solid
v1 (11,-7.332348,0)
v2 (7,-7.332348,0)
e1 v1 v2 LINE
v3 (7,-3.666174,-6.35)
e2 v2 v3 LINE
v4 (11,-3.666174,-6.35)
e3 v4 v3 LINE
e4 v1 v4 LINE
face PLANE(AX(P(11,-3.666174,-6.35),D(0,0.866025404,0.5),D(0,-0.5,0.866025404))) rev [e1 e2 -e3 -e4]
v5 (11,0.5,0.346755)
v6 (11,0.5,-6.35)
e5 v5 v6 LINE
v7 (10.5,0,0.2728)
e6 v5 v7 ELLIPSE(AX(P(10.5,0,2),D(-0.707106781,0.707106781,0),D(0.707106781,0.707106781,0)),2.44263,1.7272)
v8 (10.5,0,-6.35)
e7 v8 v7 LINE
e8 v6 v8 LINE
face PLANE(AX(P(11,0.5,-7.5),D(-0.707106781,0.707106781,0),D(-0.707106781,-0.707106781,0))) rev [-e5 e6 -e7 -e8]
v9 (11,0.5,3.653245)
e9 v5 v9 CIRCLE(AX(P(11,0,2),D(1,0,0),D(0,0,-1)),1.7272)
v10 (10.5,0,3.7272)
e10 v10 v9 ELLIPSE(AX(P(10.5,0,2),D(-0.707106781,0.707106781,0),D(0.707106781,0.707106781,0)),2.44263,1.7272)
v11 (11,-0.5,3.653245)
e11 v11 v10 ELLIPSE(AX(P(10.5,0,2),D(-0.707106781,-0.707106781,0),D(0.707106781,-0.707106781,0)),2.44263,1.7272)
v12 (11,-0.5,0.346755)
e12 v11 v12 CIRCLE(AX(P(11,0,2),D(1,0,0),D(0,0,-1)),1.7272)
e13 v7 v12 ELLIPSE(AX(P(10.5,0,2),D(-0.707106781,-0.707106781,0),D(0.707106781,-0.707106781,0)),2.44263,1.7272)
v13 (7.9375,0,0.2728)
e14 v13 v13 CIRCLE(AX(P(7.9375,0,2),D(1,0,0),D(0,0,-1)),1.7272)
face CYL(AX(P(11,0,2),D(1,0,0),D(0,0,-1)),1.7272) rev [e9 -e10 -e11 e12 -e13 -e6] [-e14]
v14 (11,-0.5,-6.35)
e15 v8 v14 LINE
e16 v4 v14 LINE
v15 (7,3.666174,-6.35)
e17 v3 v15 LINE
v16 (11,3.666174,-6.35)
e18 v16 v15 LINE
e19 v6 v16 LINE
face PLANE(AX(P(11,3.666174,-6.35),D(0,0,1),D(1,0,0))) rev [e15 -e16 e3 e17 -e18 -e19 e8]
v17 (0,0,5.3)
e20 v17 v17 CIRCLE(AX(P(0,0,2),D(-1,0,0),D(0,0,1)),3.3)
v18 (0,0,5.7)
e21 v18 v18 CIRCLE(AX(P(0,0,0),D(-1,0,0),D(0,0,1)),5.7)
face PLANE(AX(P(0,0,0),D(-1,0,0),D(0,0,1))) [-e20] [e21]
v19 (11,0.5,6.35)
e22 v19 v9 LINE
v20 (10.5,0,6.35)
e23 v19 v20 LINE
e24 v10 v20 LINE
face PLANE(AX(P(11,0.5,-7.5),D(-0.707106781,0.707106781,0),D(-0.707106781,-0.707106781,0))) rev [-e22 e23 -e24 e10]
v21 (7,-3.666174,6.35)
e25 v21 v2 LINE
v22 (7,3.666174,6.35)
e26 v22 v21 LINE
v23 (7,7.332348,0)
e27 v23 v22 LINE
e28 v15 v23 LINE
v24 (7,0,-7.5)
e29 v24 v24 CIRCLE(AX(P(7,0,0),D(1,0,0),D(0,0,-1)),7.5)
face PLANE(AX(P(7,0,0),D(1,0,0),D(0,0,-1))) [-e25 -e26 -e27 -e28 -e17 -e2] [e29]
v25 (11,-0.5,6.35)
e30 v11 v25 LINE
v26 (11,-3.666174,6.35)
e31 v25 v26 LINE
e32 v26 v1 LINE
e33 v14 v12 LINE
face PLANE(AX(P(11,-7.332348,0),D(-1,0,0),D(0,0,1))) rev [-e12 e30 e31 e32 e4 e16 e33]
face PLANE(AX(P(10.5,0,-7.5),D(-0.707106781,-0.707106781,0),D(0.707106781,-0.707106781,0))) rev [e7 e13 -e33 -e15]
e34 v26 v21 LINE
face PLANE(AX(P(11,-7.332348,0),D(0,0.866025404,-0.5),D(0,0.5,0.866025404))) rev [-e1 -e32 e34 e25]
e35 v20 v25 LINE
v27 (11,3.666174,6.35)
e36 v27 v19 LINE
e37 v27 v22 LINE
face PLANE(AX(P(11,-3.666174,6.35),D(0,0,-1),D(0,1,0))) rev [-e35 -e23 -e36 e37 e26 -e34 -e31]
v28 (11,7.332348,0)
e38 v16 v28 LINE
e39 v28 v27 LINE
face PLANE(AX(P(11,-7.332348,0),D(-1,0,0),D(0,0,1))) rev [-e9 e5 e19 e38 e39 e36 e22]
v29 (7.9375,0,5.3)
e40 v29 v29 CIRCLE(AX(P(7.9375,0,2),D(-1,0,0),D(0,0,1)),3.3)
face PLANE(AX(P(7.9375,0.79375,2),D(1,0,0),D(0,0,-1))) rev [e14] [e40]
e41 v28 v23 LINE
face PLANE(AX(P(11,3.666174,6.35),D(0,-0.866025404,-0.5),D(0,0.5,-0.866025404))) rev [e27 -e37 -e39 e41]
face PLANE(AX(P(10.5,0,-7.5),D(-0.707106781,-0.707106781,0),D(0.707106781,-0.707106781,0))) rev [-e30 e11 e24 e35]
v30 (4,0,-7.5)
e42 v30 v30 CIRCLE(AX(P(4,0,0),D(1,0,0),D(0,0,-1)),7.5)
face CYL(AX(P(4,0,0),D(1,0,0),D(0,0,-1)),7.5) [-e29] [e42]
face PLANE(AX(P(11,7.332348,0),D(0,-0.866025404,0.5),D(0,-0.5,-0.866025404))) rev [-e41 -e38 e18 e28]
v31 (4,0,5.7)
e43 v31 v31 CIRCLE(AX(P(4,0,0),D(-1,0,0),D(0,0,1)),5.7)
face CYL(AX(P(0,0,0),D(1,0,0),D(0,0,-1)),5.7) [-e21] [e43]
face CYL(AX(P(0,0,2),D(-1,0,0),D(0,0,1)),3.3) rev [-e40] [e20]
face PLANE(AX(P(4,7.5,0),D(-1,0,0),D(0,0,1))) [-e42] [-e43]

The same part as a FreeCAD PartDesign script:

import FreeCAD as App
import Part
import Sketcher
from FreeCAD import Vector
Q = App.Units.Quantity

doc = App.newDocument("Part")
body = doc.addObject("PartDesign::Body", "Body")

# Sketch on XY plane
sketch1 = body.newObject("Sketcher::SketchObject", "Sketch")
sketch1.AttachmentSupport = (doc.getObject("XY_Plane"), [""])
sketch1.MapMode = "FlatFace"
sketch1.addGeometry([
    Part.LineSegment(Vector(4, 7.5, 0), Vector(4, 0, 0)),
    Part.LineSegment(Vector(4, 0, 0), Vector(7, 0, 0)),
    Part.LineSegment(Vector(7, 0, 0), Vector(7, 7.5, 0)),
    Part.LineSegment(Vector(7, 7.5, 0), Vector(4, 7.5, 0)),
], False)
sketch1.addConstraint([
    Sketcher.Constraint("Coincident", 0, 2, 1, 1),
    Sketcher.Constraint("Coincident", 1, 2, 2, 1),
    Sketcher.Constraint("Coincident", 2, 2, 3, 1),
    Sketcher.Constraint("Coincident", 3, 2, 0, 1),
    Sketcher.Constraint("Vertical", 0),
    Sketcher.Constraint("Horizontal", 1),
    Sketcher.Constraint("Vertical", 2),
    Sketcher.Constraint("Horizontal", 3),
    Sketcher.Constraint("PointOnObject", 0, 2, -1),
    Sketcher.Constraint("DistanceX", 1, 1, 1, 2, 3.0),
    Sketcher.Constraint("DistanceY", 0, 2, 0, 1, 7.5),
    Sketcher.Constraint("DistanceX", -1, 1, 0, 2, 4.0),
])
revolution = body.newObject("PartDesign::Revolution", "Revolution")
revolution.Profile = sketch1
revolution.ReferenceAxis = (sketch1, ["H_Axis"])
revolution.Angle = 360

# Sketch on YZ plane
sketch2 = body.newObject("Sketcher::SketchObject", "Sketch001")
sketch2.AttachmentSupport = (doc.getObject("YZ_Plane"), [""])
sketch2.MapMode = "FlatFace"
sketch2.AttachmentOffset = App.Placement(Vector(0, 0, 7), App.Rotation())
sketch2.addGeometry([
    Part.LineSegment(Vector(-4, 6, 0), Vector(-7, 0, 0)),  # 0
    Part.LineSegment(Vector(-7, 0, 0), Vector(-4, -6, 0)),  # 1
    Part.LineSegment(Vector(-4, -6, 0), Vector(4, -6, 0)),  # 2
    Part.LineSegment(Vector(4, -6, 0), Vector(7, 0, 0)),  # 3
    Part.LineSegment(Vector(7, 0, 0), Vector(4, 6, 0)),  # 4
    Part.LineSegment(Vector(4, 6, 0), Vector(-4, 6, 0)),  # 5
], False)
sketch2.addConstraint([
    Sketcher.Constraint("Coincident", 0, 2, 1, 1),
    Sketcher.Constraint("Coincident", 1, 2, 2, 1),
    Sketcher.Constraint("Coincident", 2, 2, 3, 1),
    Sketcher.Constraint("Coincident", 3, 2, 4, 1),
    Sketcher.Constraint("Coincident", 4, 2, 5, 1),
    Sketcher.Constraint("Coincident", 5, 2, 0, 1),
    Sketcher.Constraint("Horizontal", 2),
    Sketcher.Constraint("Horizontal", 5),
    Sketcher.Constraint("Symmetric", 0, 2, 3, 2, -1, 1),
    Sketcher.Constraint("Symmetric", 1, 2, 4, 2, -1, 1),
    Sketcher.Constraint("PointOnObject", 0, 2, -1),
    Sketcher.Constraint("Parallel", 0, 3),
    Sketcher.Constraint("Vertical", 2, 2, 4, 2),
    Sketcher.Constraint("Angle", 0, Q("-120 deg")),
    Sketcher.Constraint("DistanceY", 2, 2, 4, 2, 12.7),
    Sketcher.Constraint("DistanceX", 2, 1, 2, 2, 7.332348),
])
pad1 = body.newObject("PartDesign::Pad", "Pad")
pad1.Profile = sketch2
pad1.Length = 4

# Sketch on XY plane
sketch3 = body.newObject("Sketcher::SketchObject", "Sketch002")
sketch3.AttachmentSupport = (doc.getObject("XY_Plane"), [""])
sketch3.MapMode = "FlatFace"
sketch3.AttachmentOffset = App.Placement(Vector(0, 0, 6.35), App.Rotation())
sketch3.addGeometry([
    Part.LineSegment(Vector(11, -0.5, 0), Vector(11, 0.5, 0)),
    Part.LineSegment(Vector(11, 0.5, 0), Vector(10.5, 0, 0)),
    Part.LineSegment(Vector(10.5, 0, 0), Vector(11, -0.5, 0)),
], False)
sketch3.addConstraint([
    Sketcher.Constraint("Coincident", 0, 2, 1, 1),
    Sketcher.Constraint("Coincident", 1, 2, 2, 1),
    Sketcher.Constraint("Coincident", 2, 2, 0, 1),
    Sketcher.Constraint("Vertical", 0),
    Sketcher.Constraint("PointOnObject", 1, 2, -1),
    Sketcher.Constraint("Perpendicular", 1, 2),
    Sketcher.Constraint("Equal", 1, 2),
    Sketcher.Constraint("DistanceY", 0, 1, 0, 2, 1.0),
    Sketcher.Constraint("DistanceX", -1, 1, 0, 2, 11.0),
])
pocket1 = body.newObject("PartDesign::Pocket", "Pocket")
pocket1.Profile = sketch3
pocket1.Type = "ThroughAll"

# Sketch on YZ plane
sketch4 = body.newObject("Sketcher::SketchObject", "Sketch003")
sketch4.AttachmentSupport = (doc.getObject("YZ_Plane"), [""])
sketch4.MapMode = "FlatFace"
sketch4.AttachmentOffset = App.Placement(Vector(0, 0, 4), App.Rotation())
sketch4.addGeometry(Part.Circle(Vector(0, 0, 0), Vector(0, 0, 1), 6), False)
sketch4.addConstraint([
    Sketcher.Constraint("Coincident", 0, 3, -1, 1),
    Sketcher.Constraint("Diameter", 0, 11.4),
])
pad2 = body.newObject("PartDesign::Pad", "Pad001")
pad2.Profile = sketch4
pad2.Length = 4
pad2.Reversed = True

# Sketch on YZ plane
sketch5 = body.newObject("Sketcher::SketchObject", "Sketch004")
sketch5.AttachmentSupport = (doc.getObject("YZ_Plane"), [""])
sketch5.MapMode = "FlatFace"
sketch5.addGeometry(Part.Circle(Vector(0, 2, 0), Vector(0, 0, 1), 0.8), False)
sketch5.addConstraint([
    Sketcher.Constraint("PointOnObject", 0, 3, -2),
    Sketcher.Constraint("DistanceY", -1, 1, 0, 3, 2.0),
    Sketcher.Constraint("Diameter", 0, 1.5875),
])
doc.recompute()
hole = body.newObject("PartDesign::Hole", "Hole")
hole.Profile = sketch5
hole.ThreadType = "None"
hole.Diameter = 1.5875
hole.DepthType = "ThroughAll"
hole.HoleCutType = "Counterbore"
hole.HoleCutDiameter = 6.6
hole.HoleCutDepth = 7.9375
hole.Reversed = True

# Sketch on YZ plane
sketch6 = body.newObject("Sketcher::SketchObject", "Sketch005")
sketch6.AttachmentSupport = (doc.getObject("YZ_Plane"), [""])
sketch6.MapMode = "FlatFace"
sketch6.AttachmentOffset = App.Placement(Vector(0, 0, 11), App.Rotation())
sketch6.addGeometry(Part.Circle(Vector(0, 2, 0), Vector(0, 0, 1), 1.7), False)
sketch6.addConstraint([
    Sketcher.Constraint("PointOnObject", 0, 3, -2),
    Sketcher.Constraint("DistanceY", -1, 1, 0, 3, 2.0),
    Sketcher.Constraint("Diameter", 0, 3.4544),
])
doc.recompute()
hole2 = body.newObject("PartDesign::Hole", "Hole001")
hole2.Profile = sketch6
hole2.ThreadType = "None"
hole2.Diameter = 3.4544
hole2.DepthType = "ThroughAll"

doc.recompute()
